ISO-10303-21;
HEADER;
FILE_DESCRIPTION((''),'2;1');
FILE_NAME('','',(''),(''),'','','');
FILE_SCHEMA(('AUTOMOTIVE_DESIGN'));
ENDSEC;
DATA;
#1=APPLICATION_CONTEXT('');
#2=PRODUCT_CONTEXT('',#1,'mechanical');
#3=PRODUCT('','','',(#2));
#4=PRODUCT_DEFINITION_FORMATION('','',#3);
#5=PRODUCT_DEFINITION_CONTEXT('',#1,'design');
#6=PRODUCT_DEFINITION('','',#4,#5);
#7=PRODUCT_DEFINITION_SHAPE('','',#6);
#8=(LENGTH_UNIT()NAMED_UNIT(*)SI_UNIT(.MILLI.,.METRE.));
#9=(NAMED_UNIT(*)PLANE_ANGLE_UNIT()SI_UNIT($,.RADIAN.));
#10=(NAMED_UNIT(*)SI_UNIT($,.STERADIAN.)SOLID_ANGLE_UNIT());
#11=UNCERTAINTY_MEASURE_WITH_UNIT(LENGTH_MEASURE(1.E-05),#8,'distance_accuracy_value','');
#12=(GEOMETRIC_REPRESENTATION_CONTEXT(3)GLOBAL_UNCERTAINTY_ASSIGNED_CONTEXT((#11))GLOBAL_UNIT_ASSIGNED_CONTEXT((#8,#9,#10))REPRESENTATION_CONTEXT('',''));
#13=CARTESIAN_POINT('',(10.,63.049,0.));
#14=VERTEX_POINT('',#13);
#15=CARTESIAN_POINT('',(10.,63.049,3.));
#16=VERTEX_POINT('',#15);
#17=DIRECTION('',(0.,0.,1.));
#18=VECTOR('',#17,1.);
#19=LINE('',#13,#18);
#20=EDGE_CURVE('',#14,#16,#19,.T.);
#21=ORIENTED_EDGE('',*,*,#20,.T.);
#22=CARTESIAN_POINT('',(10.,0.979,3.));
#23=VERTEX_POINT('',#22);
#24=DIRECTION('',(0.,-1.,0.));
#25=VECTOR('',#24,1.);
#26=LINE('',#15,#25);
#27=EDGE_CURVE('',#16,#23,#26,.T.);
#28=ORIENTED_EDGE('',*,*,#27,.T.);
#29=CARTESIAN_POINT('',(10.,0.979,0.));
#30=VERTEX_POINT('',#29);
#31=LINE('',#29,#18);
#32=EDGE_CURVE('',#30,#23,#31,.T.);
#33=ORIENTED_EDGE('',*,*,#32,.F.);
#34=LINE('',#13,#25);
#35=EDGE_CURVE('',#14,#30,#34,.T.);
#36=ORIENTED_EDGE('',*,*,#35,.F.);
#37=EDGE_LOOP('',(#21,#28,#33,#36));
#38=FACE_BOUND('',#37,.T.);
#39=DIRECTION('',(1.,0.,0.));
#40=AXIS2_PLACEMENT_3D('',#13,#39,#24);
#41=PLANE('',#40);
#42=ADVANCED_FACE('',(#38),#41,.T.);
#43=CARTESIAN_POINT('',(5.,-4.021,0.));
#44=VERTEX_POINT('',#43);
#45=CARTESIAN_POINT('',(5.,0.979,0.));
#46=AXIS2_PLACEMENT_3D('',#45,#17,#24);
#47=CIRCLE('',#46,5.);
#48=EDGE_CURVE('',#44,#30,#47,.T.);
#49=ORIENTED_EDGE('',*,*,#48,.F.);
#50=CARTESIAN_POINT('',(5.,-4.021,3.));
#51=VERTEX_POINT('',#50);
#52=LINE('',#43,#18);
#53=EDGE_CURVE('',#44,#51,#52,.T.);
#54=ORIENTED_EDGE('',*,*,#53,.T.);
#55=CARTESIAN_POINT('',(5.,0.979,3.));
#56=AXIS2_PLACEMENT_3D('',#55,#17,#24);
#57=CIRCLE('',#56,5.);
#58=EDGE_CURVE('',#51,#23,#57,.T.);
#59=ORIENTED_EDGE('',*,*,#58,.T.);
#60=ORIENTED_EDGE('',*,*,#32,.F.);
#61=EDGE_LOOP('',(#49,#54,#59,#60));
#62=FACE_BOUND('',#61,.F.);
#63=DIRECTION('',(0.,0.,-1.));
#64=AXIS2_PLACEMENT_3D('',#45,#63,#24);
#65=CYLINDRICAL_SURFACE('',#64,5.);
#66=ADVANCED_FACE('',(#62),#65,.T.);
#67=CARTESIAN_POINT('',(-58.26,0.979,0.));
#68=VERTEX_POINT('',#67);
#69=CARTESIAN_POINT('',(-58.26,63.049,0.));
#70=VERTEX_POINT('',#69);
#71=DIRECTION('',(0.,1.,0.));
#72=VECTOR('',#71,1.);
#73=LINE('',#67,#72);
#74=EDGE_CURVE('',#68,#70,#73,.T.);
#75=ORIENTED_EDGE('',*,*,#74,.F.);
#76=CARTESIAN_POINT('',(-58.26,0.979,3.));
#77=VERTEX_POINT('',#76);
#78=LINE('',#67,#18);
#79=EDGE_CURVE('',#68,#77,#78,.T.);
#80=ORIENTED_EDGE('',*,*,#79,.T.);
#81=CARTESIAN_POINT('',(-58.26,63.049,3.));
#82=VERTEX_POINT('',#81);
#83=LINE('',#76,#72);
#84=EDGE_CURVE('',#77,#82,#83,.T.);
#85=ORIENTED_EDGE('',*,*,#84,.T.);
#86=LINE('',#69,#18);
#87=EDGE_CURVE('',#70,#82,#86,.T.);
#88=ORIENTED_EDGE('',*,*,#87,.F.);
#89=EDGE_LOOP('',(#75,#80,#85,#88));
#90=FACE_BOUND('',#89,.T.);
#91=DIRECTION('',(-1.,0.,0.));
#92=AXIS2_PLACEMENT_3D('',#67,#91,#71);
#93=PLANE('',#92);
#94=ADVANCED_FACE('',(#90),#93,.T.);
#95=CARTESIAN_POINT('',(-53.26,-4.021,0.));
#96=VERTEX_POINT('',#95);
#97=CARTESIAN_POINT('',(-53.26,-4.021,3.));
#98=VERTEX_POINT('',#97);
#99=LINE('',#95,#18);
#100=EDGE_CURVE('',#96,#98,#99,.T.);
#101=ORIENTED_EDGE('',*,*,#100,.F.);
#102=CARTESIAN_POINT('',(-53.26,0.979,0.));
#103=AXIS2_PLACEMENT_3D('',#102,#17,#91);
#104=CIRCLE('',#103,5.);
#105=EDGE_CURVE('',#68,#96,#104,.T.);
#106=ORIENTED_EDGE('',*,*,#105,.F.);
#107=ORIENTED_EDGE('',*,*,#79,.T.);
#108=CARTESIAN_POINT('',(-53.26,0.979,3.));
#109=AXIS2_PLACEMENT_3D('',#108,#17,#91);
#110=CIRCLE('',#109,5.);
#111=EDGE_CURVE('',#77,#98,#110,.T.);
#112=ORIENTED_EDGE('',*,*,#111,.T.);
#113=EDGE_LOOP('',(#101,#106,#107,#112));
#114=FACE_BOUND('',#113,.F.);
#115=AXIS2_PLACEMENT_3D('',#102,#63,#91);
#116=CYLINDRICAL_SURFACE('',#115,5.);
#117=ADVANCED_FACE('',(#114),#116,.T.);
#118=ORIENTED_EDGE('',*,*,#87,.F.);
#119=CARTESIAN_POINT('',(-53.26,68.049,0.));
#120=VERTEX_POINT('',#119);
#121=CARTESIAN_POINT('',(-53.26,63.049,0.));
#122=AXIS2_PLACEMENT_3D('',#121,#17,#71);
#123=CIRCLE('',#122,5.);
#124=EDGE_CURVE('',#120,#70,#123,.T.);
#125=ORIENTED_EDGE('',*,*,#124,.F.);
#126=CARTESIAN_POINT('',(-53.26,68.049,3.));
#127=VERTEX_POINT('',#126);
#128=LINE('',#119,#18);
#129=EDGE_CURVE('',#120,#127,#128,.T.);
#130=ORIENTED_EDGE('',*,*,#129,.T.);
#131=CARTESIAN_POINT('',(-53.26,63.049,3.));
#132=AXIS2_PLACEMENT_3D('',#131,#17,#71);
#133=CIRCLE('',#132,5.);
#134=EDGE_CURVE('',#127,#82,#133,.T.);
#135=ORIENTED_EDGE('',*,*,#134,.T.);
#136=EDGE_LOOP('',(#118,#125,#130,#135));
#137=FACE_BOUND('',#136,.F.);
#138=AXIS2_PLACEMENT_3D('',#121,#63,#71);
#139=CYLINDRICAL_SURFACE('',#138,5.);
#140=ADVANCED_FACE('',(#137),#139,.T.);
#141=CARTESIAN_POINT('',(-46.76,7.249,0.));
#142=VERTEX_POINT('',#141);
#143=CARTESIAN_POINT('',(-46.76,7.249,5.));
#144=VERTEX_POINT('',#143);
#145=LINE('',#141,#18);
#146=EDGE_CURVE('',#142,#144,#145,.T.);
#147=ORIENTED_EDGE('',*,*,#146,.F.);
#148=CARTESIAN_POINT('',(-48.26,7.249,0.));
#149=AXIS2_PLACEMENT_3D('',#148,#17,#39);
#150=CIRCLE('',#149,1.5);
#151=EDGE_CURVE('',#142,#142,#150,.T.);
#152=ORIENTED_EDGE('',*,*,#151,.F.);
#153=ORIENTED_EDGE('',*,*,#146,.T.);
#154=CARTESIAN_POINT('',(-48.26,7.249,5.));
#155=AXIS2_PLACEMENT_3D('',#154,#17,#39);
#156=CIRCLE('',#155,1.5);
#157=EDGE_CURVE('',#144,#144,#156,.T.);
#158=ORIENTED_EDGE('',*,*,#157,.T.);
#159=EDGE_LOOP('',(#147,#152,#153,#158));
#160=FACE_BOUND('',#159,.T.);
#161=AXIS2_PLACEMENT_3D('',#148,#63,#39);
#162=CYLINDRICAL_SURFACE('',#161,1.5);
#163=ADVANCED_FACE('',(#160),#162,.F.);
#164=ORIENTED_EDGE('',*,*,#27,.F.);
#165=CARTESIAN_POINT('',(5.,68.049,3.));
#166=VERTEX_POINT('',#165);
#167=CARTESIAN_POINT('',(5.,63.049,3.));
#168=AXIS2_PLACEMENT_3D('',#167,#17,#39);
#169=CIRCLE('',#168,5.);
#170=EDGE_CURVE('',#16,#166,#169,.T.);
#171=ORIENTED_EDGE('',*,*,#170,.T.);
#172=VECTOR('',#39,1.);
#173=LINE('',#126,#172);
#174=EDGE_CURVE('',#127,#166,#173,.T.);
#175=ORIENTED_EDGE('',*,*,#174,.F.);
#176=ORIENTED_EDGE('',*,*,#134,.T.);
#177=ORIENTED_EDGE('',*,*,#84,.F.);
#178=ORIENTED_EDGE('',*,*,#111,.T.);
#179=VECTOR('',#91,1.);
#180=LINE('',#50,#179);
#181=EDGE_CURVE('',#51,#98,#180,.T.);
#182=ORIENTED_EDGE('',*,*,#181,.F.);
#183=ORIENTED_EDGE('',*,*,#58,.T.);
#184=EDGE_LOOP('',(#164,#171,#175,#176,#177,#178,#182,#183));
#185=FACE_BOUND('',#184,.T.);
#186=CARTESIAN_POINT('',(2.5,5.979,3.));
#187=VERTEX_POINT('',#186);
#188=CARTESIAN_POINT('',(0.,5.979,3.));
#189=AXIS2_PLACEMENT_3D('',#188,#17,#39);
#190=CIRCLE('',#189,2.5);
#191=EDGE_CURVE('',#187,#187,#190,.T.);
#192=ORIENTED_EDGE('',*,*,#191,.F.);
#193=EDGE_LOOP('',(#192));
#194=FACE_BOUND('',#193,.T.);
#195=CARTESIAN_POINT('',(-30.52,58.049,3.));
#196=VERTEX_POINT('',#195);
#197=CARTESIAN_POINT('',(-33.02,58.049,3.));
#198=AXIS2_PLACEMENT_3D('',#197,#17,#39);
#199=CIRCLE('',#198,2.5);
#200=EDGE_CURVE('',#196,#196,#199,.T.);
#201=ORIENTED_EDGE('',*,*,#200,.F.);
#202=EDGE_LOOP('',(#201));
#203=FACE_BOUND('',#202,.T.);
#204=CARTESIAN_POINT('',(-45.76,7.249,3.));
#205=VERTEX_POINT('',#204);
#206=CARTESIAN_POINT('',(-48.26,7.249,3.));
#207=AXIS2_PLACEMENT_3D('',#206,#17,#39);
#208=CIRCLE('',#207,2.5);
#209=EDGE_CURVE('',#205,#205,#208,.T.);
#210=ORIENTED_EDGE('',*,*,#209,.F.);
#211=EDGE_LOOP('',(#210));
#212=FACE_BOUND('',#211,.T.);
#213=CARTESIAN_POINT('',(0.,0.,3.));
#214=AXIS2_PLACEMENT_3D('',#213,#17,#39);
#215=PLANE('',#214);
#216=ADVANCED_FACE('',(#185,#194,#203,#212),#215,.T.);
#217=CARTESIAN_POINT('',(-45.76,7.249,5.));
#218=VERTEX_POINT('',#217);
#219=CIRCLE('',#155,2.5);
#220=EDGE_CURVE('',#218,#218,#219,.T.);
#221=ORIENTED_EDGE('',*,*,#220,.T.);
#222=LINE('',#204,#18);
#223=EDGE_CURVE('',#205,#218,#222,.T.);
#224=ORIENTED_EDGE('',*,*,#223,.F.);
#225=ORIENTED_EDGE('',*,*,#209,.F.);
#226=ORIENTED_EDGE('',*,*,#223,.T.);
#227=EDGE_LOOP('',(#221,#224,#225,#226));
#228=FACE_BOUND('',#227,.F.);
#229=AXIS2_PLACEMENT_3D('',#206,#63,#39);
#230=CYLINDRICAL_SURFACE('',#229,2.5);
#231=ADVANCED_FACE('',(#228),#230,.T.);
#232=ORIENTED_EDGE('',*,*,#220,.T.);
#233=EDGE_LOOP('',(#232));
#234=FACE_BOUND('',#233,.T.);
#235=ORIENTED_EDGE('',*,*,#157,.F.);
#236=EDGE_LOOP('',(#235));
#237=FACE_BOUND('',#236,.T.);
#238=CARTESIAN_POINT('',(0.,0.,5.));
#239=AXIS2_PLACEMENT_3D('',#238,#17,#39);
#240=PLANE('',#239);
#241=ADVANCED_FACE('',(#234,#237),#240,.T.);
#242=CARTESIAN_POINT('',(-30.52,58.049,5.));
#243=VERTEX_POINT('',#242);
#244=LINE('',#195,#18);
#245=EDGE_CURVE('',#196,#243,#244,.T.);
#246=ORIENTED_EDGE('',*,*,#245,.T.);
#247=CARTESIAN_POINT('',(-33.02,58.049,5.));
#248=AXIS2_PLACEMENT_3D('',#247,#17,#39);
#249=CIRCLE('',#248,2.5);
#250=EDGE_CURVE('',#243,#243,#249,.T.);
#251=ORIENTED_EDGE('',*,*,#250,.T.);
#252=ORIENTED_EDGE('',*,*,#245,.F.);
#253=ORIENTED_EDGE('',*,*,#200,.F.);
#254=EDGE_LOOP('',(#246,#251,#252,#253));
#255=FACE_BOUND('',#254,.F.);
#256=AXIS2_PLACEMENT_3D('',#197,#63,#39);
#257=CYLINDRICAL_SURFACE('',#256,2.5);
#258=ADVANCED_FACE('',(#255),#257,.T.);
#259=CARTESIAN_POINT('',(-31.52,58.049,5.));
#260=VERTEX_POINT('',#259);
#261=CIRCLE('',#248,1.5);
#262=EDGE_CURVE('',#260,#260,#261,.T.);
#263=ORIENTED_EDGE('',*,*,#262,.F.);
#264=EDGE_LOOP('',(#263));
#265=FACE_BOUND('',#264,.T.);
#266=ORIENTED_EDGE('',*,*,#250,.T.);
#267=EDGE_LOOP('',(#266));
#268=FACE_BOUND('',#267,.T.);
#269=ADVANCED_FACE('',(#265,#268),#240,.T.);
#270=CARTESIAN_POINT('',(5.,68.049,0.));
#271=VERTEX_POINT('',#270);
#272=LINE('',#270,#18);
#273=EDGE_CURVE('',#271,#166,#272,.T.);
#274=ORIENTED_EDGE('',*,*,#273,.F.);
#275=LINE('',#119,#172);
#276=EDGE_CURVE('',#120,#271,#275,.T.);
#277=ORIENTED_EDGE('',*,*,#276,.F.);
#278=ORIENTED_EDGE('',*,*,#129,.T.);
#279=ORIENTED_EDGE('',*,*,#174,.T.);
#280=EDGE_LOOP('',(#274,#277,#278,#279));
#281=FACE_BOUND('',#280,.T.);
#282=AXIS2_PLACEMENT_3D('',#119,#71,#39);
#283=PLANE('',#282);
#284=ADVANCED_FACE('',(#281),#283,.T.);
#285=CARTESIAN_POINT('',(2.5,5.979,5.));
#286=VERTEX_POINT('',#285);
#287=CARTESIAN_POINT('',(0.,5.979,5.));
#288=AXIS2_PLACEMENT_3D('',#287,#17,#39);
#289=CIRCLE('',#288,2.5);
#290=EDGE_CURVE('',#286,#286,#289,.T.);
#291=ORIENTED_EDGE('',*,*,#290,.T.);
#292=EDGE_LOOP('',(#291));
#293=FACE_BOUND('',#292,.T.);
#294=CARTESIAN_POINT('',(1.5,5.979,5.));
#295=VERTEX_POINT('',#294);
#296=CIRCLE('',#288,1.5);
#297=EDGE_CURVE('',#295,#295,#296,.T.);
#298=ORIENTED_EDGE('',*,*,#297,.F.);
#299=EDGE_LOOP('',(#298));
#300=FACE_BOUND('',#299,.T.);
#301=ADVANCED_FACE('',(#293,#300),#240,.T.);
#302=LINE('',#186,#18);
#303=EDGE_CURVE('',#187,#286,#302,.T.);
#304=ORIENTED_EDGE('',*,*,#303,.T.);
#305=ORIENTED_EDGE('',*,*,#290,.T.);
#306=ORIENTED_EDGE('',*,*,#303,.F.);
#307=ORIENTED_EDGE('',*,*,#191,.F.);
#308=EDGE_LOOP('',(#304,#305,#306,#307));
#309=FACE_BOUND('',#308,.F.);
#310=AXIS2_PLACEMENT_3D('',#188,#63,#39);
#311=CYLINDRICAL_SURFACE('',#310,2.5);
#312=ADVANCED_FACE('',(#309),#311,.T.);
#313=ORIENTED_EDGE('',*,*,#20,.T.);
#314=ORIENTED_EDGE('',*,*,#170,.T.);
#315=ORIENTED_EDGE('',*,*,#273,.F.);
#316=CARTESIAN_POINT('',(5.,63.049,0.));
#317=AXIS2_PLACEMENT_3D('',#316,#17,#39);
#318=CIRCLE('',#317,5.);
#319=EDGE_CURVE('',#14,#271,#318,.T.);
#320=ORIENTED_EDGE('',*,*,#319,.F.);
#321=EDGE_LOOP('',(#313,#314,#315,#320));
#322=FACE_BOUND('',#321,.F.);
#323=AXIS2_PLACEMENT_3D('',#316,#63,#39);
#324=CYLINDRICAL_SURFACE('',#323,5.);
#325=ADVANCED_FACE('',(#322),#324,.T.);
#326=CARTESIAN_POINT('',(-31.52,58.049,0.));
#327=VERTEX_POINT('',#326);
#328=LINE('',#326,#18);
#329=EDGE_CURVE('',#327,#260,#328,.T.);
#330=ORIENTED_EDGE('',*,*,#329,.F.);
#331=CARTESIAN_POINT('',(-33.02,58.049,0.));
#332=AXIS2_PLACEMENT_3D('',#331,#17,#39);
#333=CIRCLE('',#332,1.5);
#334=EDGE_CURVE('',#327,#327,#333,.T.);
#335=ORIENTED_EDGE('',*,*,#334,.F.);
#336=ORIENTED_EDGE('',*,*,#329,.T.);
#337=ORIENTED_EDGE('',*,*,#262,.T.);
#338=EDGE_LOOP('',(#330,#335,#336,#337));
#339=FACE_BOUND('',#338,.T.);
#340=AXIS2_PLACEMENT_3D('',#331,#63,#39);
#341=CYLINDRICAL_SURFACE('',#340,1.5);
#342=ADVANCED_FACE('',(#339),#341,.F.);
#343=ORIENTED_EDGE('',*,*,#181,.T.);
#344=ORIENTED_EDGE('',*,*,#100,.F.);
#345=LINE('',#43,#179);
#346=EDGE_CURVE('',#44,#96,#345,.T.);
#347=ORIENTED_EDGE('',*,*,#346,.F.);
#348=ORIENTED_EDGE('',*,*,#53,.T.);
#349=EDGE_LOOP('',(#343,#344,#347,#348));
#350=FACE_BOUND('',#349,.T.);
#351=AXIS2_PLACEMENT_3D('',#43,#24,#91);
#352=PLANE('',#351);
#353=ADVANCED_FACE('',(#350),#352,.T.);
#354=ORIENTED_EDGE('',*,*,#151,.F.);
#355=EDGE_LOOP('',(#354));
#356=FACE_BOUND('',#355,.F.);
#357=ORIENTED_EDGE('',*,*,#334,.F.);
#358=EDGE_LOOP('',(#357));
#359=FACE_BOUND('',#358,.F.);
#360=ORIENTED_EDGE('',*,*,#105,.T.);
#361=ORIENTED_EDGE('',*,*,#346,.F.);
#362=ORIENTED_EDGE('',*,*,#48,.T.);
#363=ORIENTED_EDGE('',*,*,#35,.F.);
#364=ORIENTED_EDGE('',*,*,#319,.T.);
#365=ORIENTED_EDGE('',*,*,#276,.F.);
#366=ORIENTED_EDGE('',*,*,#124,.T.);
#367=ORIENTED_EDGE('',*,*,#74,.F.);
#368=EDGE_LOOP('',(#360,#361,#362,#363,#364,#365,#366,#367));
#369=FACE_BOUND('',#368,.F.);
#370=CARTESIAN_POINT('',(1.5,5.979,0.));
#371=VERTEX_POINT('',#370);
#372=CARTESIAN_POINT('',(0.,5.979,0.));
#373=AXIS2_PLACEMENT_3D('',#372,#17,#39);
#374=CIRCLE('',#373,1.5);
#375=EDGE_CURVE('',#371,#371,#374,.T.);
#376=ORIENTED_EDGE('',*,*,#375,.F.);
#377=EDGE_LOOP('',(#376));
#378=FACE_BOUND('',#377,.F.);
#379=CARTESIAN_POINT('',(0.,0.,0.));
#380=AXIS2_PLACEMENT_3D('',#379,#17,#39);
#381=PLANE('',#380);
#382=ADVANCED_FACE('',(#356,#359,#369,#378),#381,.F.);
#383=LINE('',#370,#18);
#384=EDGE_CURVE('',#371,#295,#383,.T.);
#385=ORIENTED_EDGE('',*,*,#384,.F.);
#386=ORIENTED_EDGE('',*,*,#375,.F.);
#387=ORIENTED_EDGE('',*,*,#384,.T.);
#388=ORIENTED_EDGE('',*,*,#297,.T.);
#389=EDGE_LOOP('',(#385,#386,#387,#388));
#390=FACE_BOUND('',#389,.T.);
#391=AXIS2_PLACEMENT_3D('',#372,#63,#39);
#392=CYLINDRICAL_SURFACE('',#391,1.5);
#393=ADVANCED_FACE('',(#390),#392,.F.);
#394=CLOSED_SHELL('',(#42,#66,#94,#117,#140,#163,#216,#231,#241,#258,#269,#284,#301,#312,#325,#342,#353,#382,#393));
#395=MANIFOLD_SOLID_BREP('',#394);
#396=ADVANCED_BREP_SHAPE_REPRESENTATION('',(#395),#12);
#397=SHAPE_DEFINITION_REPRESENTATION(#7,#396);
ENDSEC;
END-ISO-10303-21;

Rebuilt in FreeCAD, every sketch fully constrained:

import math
import FreeCAD as App
import Part
import Sketcher

V = App.Vector
Q = App.Units.Quantity

doc = App.newDocument("Part")
params = doc.addObject("Spreadsheet::Sheet", "Params")
for row, (alias, value) in enumerate([
    ("sketch1_diameter", "3 mm"),
    ("sketch1_radius", "5 mm"),
    ("pad1_length", "3 mm"),
    ("sketch2_diameter", "5 mm"),
    ("sketch2_diameter2", "3 mm"),
    ("pad2_length", "2 mm"),
], start=1):
    params.set(f"A{row}", alias)
    params.set(f"B{row}", "=" + value)
    params.setAlias(f"B{row}", alias)

body = doc.addObject("PartDesign::Body", "Body")

# Sketch on XY plane
sketch1 = body.newObject("Sketcher::SketchObject", "Sketch")
sketch1.AttachmentSupport = (doc.getObject("XY_Plane"), [""])
sketch1.MapMode = "FlatFace"
sketch1.addGeometry(Part.LineSegment(V(5, 68, 0), V(-53.3, 68, 0)), False)
sketch1.addGeometry(Part.ArcOfCircle(Part.Circle(V(-53.3, 63, 0), V(0, 0, 1), 5), math.radians(90), math.radians(180)), False)
sketch1.addGeometry(Part.LineSegment(V(-58.3, 63, 0), V(-58.3, 1, 0)), False)
sketch1.addGeometry(Part.ArcOfCircle(Part.Circle(V(-53.3, 1, 0), V(0, 0, 1), 5), math.radians(180), math.radians(270)), False)
sketch1.addGeometry(Part.LineSegment(V(-53.3, -4, 0), V(5, -4, 0)), False)
sketch1.addGeometry(Part.ArcOfCircle(Part.Circle(V(5, 1, 0), V(0, 0, 1), 5), math.radians(-90), math.radians(0)), False)
sketch1.addGeometry(Part.LineSegment(V(10, 1, 0), V(10, 63, 0)), False)
sketch1.addGeometry(Part.ArcOfCircle(Part.Circle(V(5, 63, 0), V(0, 0, 1), 5), math.radians(0), math.radians(90)), False)
sketch1.addGeometry(Part.Circle(V(-48.3, 7.2, 0), V(0, 0, 1), 1.5), False)
sketch1.addGeometry(Part.Circle(V(0, 6, 0), V(0, 0, 1), 1.5), False)
sketch1.addGeometry(Part.Circle(V(-33, 58, 0), V(0, 0, 1), 1.5), False)
sketch1.addConstraint(Sketcher.Constraint("Tangent", 0, 2, 1, 1))
sketch1.addConstraint(Sketcher.Constraint("Tangent", 1, 2, 2, 1))
sketch1.addConstraint(Sketcher.Constraint("Tangent", 2, 2, 3, 1))
sketch1.addConstraint(Sketcher.Constraint("Tangent", 3, 2, 4, 1))
sketch1.addConstraint(Sketcher.Constraint("Tangent", 4, 2, 5, 1))
sketch1.addConstraint(Sketcher.Constraint("Tangent", 5, 2, 6, 1))
sketch1.addConstraint(Sketcher.Constraint("Tangent", 6, 2, 7, 1))
sketch1.addConstraint(Sketcher.Constraint("Tangent", 7, 2, 0, 1))
sketch1.addConstraint(Sketcher.Constraint("Horizontal", 0))
sketch1.addConstraint(Sketcher.Constraint("Vertical", 2))
sketch1.addConstraint(Sketcher.Constraint("Horizontal", 4))
sketch1.addConstraint(Sketcher.Constraint("Vertical", 6))
sketch1.addConstraint(Sketcher.Constraint("Equal", 1, 3))
sketch1.addConstraint(Sketcher.Constraint("Equal", 3, 5))
sketch1.addConstraint(Sketcher.Constraint("Equal", 5, 7))
sketch1.addConstraint(Sketcher.Constraint("Equal", 8, 9))
sketch1.addConstraint(Sketcher.Constraint("Equal", 9, 10))
sketch1.addConstraint(Sketcher.Constraint("PointOnObject", 9, 3, -2))
sketch1.addConstraint(Sketcher.Constraint("Diameter", 8, Q("3 mm")))
sketch1.addConstraint(Sketcher.Constraint("Radius", 1, Q("5 mm")))
sketch1.addConstraint(Sketcher.Constraint("DistanceX", -1, 1, 5, 3, Q("5 mm")))
sketch1.addConstraint(Sketcher.Constraint("DistanceX", 3, 3, 8, 3, Q("5 mm")))
sketch1.addConstraint(Sketcher.Constraint("DistanceY", 5, 3, 9, 3, Q("5 mm")))
sketch1.addConstraint(Sketcher.Constraint("DistanceY", 10, 3, 1, 3, Q("5 mm")))
sketch1.addConstraint(Sketcher.Constraint("DistanceY", 8, 3, 10, 3, Q("50.8 mm")))
sketch1.addConstraint(Sketcher.Constraint("DistanceX", 8, 3, -1, 1, Q("48.26 mm")))
sketch1.addConstraint(Sketcher.Constraint("DistanceY", 9, 3, 8, 3, Q("1.27 mm")))
sketch1.addConstraint(Sketcher.Constraint("DistanceX", 8, 3, 10, 3, Q("15.24 mm")))
sketch1.addConstraint(Sketcher.Constraint("DistanceY", -1, 1, 1, 3, Q("63.049 mm")))
sketch1.setExpression("Constraints[18]", "Params.sketch1_diameter")
sketch1.setExpression("Constraints[19]", "Params.sketch1_radius")
pad1 = body.newObject("PartDesign::Pad", "Pad")
pad1.Profile = sketch1
pad1.setExpression("Length", "Params.pad1_length")

# Sketch on XY plane
sketch2 = body.newObject("Sketcher::SketchObject", "Sketch001")
sketch2.AttachmentSupport = (doc.getObject("XY_Plane"), [""])
sketch2.MapMode = "FlatFace"
sketch2.AttachmentOffset = App.Placement(V(0, 0, 3), App.Rotation())
sketch2.addGeometry(Part.Circle(V(-33, 58, 0), V(0, 0, 1), 2.5), False)
sketch2.addGeometry(Part.Circle(V(-33, 58, 0), V(0, 0, 1), 1.5), False)
sketch2.addGeometry(Part.Circle(V(0, 6, 0), V(0, 0, 1), 2.5), False)
sketch2.addGeometry(Part.Circle(V(0, 6, 0), V(0, 0, 1), 1.5), False)
sketch2.addGeometry(Part.Circle(V(-48.3, 7.2, 0), V(0, 0, 1), 2.5), False)
sketch2.addGeometry(Part.Circle(V(-48.3, 7.2, 0), V(0, 0, 1), 1.5), False)
sketch2.addConstraint(Sketcher.Constraint("Coincident", 1, 3, 0, 3))
sketch2.addConstraint(Sketcher.Constraint("Coincident", 3, 3, 2, 3))
sketch2.addConstraint(Sketcher.Constraint("Coincident", 5, 3, 4, 3))
sketch2.addConstraint(Sketcher.Constraint("Equal", 0, 2))
sketch2.addConstraint(Sketcher.Constraint("Equal", 1, 3))
sketch2.addConstraint(Sketcher.Constraint("Equal", 2, 4))
sketch2.addConstraint(Sketcher.Constraint("Equal", 3, 5))
sketch2.addConstraint(Sketcher.Constraint("PointOnObject", 2, 3, -2))
sketch2.addConstraint(Sketcher.Constraint("Diameter", 0, Q("5 mm")))
sketch2.addConstraint(Sketcher.Constraint("Diameter", 1, Q("3 mm")))
sketch2.addConstraint(Sketcher.Constraint("DistanceY", 4, 3, 0, 3, Q("50.8 mm")))
sketch2.addConstraint(Sketcher.Constraint("DistanceX", 0, 3, -1, 1, Q("33.02 mm")))
sketch2.addConstraint(Sketcher.Constraint("DistanceX", 4, 3, -1, 1, Q("48.26 mm")))
sketch2.addConstraint(Sketcher.Constraint("DistanceY", 2, 3, 0, 3, Q("52.07 mm")))
sketch2.addConstraint(Sketcher.Constraint("DistanceY", -1, 1, 0, 3, Q("58.049 mm")))
sketch2.setExpression("Constraints[8]", "Params.sketch2_diameter")
sketch2.setExpression("Constraints[9]", "Params.sketch2_diameter2")
pad2 = body.newObject("PartDesign::Pad", "Pad001")
pad2.Profile = sketch2
pad2.setExpression("Length", "Params.pad2_length")

doc.recompute()
